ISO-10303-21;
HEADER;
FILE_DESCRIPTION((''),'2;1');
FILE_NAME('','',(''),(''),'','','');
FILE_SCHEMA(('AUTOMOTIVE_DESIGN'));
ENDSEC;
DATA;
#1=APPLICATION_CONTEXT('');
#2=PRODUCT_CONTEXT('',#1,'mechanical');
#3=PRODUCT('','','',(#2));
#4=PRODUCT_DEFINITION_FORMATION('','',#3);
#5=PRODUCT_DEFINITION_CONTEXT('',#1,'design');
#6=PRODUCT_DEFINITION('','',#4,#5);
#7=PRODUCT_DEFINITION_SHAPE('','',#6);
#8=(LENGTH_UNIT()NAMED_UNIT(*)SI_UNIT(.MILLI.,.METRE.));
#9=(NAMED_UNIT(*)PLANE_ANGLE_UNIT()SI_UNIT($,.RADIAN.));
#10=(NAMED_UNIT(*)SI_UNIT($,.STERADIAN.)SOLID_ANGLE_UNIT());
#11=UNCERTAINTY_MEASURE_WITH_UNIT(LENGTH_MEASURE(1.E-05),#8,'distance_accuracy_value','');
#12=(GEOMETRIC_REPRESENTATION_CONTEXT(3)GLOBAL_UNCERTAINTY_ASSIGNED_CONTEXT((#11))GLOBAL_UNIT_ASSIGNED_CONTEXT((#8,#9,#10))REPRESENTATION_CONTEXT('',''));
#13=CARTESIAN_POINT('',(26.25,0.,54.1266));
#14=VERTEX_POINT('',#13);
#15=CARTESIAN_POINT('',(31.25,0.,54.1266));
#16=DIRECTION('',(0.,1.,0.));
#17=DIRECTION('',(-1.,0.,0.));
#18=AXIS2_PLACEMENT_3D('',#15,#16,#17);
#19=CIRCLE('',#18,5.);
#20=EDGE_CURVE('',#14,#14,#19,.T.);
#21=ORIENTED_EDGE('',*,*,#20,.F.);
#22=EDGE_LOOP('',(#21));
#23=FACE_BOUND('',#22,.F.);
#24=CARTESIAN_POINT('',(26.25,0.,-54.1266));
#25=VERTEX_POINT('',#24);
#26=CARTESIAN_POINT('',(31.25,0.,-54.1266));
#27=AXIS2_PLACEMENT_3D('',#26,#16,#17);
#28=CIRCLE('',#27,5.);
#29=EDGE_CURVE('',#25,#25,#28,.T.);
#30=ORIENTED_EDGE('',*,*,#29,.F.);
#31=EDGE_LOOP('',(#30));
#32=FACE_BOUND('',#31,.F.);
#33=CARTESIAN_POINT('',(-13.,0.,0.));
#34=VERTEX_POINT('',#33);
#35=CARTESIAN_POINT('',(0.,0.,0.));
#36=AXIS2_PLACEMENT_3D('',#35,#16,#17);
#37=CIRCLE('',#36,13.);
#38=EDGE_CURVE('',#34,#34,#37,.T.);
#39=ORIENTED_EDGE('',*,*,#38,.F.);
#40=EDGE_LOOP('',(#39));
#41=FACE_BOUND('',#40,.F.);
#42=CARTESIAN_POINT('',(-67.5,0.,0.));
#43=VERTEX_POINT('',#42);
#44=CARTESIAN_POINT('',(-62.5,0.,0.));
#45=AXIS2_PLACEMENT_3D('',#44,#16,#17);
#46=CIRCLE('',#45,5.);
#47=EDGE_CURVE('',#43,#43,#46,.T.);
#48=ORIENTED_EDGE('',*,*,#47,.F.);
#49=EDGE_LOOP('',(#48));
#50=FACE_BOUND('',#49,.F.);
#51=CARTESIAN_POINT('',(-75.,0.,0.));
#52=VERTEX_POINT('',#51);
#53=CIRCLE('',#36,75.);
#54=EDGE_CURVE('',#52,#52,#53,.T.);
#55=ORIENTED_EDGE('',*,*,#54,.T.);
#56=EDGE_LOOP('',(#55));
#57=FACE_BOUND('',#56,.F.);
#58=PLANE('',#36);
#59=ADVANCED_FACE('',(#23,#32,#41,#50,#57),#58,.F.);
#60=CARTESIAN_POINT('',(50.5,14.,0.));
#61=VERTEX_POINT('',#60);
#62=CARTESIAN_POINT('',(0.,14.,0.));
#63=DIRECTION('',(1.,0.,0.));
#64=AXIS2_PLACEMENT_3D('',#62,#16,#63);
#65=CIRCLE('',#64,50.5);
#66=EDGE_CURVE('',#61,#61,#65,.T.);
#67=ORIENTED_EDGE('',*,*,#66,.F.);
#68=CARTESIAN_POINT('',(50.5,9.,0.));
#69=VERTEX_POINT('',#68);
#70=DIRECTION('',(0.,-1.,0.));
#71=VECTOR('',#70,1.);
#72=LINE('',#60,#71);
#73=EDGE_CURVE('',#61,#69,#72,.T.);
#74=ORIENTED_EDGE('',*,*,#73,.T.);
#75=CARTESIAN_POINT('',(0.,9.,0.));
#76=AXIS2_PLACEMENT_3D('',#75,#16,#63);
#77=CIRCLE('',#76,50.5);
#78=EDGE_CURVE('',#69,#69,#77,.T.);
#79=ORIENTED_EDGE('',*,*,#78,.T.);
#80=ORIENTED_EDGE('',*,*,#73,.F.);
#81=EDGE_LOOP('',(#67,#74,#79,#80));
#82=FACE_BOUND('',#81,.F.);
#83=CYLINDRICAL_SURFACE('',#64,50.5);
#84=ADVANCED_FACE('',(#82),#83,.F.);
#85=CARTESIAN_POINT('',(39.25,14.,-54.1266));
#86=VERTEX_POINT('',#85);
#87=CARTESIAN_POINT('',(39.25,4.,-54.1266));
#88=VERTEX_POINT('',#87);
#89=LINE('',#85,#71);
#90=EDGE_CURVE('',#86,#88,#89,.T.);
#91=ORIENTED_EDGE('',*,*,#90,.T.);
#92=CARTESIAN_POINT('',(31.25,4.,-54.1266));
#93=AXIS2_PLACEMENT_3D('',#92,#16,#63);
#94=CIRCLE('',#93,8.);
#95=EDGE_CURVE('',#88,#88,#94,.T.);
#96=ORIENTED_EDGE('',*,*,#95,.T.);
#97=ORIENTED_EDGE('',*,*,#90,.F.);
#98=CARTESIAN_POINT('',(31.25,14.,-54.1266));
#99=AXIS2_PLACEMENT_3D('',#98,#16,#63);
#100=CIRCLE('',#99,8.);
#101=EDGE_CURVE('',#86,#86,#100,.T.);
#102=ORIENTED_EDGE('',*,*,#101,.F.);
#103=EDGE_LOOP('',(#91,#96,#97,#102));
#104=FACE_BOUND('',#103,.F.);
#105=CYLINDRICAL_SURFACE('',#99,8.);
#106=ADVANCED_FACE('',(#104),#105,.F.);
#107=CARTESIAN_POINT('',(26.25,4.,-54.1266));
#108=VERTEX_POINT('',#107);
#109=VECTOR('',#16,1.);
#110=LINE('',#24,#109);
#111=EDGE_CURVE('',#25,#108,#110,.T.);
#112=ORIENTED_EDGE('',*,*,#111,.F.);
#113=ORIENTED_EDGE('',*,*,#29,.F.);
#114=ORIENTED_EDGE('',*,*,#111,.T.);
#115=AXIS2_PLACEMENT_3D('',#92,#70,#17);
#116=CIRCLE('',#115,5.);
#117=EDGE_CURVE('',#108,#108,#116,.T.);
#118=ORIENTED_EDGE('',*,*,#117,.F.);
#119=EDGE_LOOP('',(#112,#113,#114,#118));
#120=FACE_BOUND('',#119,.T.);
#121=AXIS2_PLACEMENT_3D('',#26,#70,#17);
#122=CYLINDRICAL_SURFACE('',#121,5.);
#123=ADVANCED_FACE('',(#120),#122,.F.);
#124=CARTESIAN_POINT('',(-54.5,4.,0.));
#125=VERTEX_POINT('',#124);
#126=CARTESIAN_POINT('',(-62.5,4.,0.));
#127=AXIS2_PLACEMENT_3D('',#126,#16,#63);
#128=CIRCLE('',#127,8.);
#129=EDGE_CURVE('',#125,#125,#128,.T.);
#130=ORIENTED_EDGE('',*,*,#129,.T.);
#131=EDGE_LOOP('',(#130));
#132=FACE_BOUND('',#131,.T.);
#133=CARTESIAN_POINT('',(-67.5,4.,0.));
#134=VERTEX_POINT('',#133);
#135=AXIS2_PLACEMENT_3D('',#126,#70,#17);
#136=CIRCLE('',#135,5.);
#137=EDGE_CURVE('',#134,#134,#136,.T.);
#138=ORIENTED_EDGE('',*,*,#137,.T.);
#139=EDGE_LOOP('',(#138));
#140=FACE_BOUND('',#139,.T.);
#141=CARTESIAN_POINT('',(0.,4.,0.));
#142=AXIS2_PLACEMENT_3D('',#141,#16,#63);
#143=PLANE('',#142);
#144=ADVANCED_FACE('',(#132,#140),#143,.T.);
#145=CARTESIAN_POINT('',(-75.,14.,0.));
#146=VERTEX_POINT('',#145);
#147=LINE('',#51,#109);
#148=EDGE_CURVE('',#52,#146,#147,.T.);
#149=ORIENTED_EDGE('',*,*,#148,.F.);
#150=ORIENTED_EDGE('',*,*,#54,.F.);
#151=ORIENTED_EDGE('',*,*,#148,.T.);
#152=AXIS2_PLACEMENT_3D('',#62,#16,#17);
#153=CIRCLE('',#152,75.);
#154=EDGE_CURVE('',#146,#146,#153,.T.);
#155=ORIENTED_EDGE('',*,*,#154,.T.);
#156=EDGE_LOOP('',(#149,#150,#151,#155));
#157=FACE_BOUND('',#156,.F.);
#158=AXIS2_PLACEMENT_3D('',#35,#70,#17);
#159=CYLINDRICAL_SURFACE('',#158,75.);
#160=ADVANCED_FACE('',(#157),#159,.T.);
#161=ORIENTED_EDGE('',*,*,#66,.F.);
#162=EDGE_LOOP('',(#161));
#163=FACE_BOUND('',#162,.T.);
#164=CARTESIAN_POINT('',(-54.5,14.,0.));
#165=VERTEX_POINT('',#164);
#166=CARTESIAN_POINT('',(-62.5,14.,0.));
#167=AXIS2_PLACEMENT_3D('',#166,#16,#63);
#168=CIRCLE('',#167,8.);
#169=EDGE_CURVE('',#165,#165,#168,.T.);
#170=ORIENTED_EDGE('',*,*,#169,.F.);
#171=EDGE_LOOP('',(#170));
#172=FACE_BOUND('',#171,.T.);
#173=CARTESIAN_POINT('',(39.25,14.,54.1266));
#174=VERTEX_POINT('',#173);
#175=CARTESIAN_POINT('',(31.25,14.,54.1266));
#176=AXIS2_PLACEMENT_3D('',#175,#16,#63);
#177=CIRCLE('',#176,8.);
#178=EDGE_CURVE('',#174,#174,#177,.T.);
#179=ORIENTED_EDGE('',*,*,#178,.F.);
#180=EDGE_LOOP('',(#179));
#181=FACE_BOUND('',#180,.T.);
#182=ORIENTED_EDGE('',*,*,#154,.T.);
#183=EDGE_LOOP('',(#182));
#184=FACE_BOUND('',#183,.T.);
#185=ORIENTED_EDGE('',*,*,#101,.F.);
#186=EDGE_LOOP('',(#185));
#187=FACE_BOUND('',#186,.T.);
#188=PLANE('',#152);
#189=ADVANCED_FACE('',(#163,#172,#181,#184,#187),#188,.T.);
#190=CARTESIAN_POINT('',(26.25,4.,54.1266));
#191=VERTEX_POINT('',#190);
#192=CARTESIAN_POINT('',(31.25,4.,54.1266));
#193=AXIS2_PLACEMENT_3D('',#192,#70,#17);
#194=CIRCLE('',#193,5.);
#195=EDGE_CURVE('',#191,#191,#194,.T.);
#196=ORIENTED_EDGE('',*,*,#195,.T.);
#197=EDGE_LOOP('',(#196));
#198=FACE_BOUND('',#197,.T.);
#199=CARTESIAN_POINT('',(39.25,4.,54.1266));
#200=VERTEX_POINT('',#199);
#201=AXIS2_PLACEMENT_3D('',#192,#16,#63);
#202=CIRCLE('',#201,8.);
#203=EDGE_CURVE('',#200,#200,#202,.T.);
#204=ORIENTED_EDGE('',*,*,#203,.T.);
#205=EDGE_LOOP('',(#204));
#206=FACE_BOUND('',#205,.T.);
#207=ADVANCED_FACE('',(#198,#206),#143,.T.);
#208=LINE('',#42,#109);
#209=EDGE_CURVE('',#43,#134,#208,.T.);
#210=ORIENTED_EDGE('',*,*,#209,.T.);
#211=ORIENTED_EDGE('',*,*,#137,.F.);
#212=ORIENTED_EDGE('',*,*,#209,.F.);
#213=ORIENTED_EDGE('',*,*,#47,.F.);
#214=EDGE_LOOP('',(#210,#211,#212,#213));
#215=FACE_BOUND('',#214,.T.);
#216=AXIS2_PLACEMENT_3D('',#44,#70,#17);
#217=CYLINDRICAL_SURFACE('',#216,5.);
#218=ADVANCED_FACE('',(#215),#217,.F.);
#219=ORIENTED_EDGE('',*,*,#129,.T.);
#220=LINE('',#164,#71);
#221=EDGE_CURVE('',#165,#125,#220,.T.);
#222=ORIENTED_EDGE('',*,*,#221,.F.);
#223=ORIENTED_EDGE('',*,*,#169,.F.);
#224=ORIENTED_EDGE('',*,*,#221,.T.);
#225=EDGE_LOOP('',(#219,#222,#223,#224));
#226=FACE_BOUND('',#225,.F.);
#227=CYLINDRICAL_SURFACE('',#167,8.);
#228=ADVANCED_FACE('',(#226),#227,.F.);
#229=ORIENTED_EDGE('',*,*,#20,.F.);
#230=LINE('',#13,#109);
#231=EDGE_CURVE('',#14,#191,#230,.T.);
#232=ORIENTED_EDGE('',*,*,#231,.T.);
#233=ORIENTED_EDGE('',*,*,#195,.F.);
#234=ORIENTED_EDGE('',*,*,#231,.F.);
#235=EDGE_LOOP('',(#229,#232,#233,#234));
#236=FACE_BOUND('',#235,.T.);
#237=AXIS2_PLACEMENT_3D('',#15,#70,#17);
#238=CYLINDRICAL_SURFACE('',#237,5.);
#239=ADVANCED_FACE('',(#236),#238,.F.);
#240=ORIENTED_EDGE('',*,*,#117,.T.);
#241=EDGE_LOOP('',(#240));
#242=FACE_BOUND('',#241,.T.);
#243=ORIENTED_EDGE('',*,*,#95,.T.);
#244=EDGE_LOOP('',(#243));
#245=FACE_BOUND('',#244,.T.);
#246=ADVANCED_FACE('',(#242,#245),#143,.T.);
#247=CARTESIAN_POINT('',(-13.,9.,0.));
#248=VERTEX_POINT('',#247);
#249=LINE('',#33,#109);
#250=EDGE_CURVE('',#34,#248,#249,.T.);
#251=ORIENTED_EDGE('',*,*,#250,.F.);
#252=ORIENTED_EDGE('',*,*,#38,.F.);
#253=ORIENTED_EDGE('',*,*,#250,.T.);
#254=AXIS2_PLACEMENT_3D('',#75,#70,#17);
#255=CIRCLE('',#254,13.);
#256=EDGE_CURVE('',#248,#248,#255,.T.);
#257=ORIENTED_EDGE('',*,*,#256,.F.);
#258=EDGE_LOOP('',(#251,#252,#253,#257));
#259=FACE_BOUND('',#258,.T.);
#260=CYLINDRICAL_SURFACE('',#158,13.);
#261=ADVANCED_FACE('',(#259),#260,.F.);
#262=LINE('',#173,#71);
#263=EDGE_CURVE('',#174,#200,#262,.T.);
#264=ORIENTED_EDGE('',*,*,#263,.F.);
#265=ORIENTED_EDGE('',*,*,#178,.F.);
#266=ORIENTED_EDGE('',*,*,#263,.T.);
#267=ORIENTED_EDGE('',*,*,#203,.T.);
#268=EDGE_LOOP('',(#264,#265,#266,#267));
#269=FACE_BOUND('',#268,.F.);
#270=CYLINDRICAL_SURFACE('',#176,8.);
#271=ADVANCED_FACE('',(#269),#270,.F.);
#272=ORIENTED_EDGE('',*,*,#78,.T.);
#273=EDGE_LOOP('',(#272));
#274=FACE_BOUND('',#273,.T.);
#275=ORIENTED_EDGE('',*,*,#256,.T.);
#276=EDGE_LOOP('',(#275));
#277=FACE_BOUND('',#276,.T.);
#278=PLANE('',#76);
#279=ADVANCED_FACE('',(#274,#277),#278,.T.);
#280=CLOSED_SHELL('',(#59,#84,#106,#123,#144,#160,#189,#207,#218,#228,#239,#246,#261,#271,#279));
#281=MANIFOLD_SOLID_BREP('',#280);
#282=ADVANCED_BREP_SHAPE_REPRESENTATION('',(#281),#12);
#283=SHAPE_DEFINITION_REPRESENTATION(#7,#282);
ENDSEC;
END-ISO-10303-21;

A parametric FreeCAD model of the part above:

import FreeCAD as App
import Part
import Sketcher

V = App.Vector

doc = App.newDocument("Part")
body = doc.addObject("PartDesign::Body", "Body")

# Sketch on XZ plane
sketch1 = body.newObject("Sketcher::SketchObject", "Sketch")
sketch1.AttachmentSupport = (doc.getObject("XZ_Plane"), [""])
sketch1.MapMode = "FlatFace"
sketch1.addGeometry([
    Part.Circle(V(0, 0, 0), V(0, 0, 1), 75),  # 0
    Part.Circle(V(0, 0, 0), V(0, 0, 1), 13),  # 1
    Part.Circle(V(31.25, -54.1266, 0), V(0, 0, 1), 5),  # 2
    Part.Circle(V(31.25, 54.1266, 0), V(0, 0, 1), 5),  # 3
    Part.Circle(V(-62.5, 0, 0), V(0, 0, 1), 5),  # 4
], False)
sketch1.addConstraint([
    Sketcher.Constraint("Coincident", 0, 3, -1, 1),
    Sketcher.Constraint("Coincident", 1, 3, -1, 1),
    Sketcher.Constraint("Equal", 2, 3),
    Sketcher.Constraint("Equal", 3, 4),
    Sketcher.Constraint("Symmetric", 2, 3, 3, 3, -1),
    Sketcher.Constraint("PointOnObject", 4, 3, -1),
    Sketcher.Constraint("Diameter", 0, 150.0),
    Sketcher.Constraint("Diameter", 1, 26.0),
    Sketcher.Constraint("Diameter", 2, 10.0),
    Sketcher.Constraint("DistanceX", 4, 3, -1, 1, 62.5),
    Sketcher.Constraint("DistanceX", -1, 1, 2, 3, 31.25),
    Sketcher.Constraint("DistanceY", 2, 3, -1, 1, 54.1266),
])
pad1 = body.newObject("PartDesign::Pad", "Pad")
pad1.Profile = sketch1
pad1.Length = 14
pad1.Reversed = True

# Sketch on XZ plane
sketch2 = body.newObject("Sketcher::SketchObject", "Sketch001")
sketch2.AttachmentSupport = (doc.getObject("XZ_Plane"), [""])
sketch2.MapMode = "FlatFace"
sketch2.AttachmentOffset = App.Placement(V(0, 0, -14), App.Rotation())
sketch2.addGeometry([
    Part.Circle(V(-62.5, 0, 0), V(0, 0, 1), 8),
    Part.Circle(V(31.25, -54.1266, 0), V(0, 0, 1), 8),
    Part.Circle(V(31.25, 54.1266, 0), V(0, 0, 1), 8),
], False)
sketch2.addConstraint([
    Sketcher.Constraint("Equal", 0, 1),
    Sketcher.Constraint("Equal", 1, 2),
    Sketcher.Constraint("Symmetric", 1, 3, 2, 3, -1),
    Sketcher.Constraint("PointOnObject", 0, 3, -1),
    Sketcher.Constraint("Diameter", 0, 16.0),
    Sketcher.Constraint("DistanceX", 0, 3, -1, 1, 62.5),
    Sketcher.Constraint("DistanceX", -1, 1, 1, 3, 31.25),
    Sketcher.Constraint("DistanceY", 1, 3, -1, 1, 54.1266),
])
pocket1 = body.newObject("PartDesign::Pocket", "Pocket")
pocket1.Profile = sketch2
pocket1.Length = 10
pocket1.Reversed = True

# Sketch on XZ plane
sketch3 = body.newObject("Sketcher::SketchObject", "Sketch002")
sketch3.AttachmentSupport = (doc.getObject("XZ_Plane"), [""])
sketch3.MapMode = "FlatFace"
sketch3.AttachmentOffset = App.Placement(V(0, 0, -14), App.Rotation())
sketch3.addGeometry(Part.Circle(V(0, 0, 0), V(0, 0, 1), 50.5), False)
sketch3.addConstraint([
    Sketcher.Constraint("Coincident", 0, 3, -1, 1),
    Sketcher.Constraint("Diameter", 0, 101.0),
])
pocket2 = body.newObject("PartDesign::Pocket", "Pocket001")
pocket2.Profile = sketch3
pocket2.Length = 5
pocket2.Reversed = True

doc.recompute()
